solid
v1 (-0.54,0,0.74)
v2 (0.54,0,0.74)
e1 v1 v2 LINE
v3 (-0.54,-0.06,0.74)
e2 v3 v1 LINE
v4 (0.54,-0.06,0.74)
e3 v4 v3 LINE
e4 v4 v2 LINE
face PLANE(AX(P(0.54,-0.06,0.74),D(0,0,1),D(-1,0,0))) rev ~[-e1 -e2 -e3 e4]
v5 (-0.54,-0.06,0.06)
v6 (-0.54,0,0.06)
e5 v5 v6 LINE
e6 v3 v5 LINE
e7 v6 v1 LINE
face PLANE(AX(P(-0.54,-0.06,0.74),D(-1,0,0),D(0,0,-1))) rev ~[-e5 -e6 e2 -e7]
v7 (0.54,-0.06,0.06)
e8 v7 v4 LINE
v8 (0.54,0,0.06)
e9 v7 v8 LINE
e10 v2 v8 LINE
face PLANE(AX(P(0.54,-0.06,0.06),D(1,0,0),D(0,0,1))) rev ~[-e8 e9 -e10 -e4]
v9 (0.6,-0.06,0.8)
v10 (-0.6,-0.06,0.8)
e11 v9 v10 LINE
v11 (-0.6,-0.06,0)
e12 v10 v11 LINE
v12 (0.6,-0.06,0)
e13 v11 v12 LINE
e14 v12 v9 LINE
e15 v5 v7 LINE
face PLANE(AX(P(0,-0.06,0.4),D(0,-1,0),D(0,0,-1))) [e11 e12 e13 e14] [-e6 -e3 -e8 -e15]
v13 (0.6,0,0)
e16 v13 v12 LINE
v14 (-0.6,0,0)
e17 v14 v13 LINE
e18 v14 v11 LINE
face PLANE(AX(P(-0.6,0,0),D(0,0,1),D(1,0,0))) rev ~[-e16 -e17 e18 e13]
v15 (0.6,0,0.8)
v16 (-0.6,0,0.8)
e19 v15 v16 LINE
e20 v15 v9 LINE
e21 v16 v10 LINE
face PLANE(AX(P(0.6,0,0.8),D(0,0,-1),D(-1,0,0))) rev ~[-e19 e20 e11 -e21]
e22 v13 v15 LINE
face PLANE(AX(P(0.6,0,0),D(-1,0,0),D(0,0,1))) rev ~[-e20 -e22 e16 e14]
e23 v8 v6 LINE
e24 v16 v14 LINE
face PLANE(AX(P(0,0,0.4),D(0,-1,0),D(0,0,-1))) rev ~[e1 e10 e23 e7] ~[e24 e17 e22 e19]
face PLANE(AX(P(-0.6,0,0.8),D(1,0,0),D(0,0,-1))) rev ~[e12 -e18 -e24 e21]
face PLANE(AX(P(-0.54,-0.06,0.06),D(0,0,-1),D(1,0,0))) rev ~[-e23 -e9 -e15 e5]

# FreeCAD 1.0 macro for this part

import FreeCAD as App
import Part
import Sketcher
Q = App.Units.Quantity

doc = App.newDocument("Part")
params = doc.addObject("Spreadsheet::Sheet", "Params")
for row, (alias, value) in enumerate([
    ("sketch1_height", "0.8 mm"),
    ("pad1_length", "0.06 mm"),
    ("sketch2_height", "0.68 mm"),
], start=1):
    params.set(f"A{row}", alias)
    params.set(f"B{row}", "=" + value)
    params.setAlias(f"B{row}", alias)

body = doc.addObject("PartDesign::Body", "Body")

sketch1 = body.newObject("Sketcher::SketchObject", "Sketch")
sketch1.AttachmentSupport = (doc.getObject("XZ_Plane"), [""])
sketch1.MapMode = "FlatFace"
sketch1.addGeometry([
    Part.LineSegment(App.Vector(-0.6, 0.8, 0), App.Vector(-0.6, 0, 0)),
    Part.LineSegment(App.Vector(-0.6, 0, 0), App.Vector(0.6, 0, 0)),
    Part.LineSegment(App.Vector(0.6, 0, 0), App.Vector(0.6, 0.8, 0)),
    Part.LineSegment(App.Vector(0.6, 0.8, 0), App.Vector(-0.6, 0.8, 0)),
], False)
sketch1.addConstraint([
    Sketcher.Constraint("Coincident", 0, 2, 1, 1),
    Sketcher.Constraint("Coincident", 1, 2, 2, 1),
    Sketcher.Constraint("Coincident", 2, 2, 3, 1),
    Sketcher.Constraint("Coincident", 3, 2, 0, 1),
    Sketcher.Constraint("Vertical", 0),
    Sketcher.Constraint("Horizontal", 1),
    Sketcher.Constraint("Vertical", 2),
    Sketcher.Constraint("Horizontal", 3),
    Sketcher.Constraint("Symmetric", 0, 2, 1, 2, -1, 1),
    Sketcher.Constraint("DistanceX", 0, 2, -1, 1, Q("0.6 mm")),
    Sketcher.Constraint("DistanceY", 0, 2, 0, 1, Q("0.8 mm")),
])
sketch1.setExpression("Constraints[10]", "Params.sketch1_height")
pad1 = body.newObject("PartDesign::Pad", "Pad")
pad1.Profile = sketch1
pad1.setExpression("Length", "Params.pad1_length")

sketch2 = body.newObject("Sketcher::SketchObject", "Sketch001")
sketch2.AttachmentSupport = (doc.getObject("XZ_Plane"), [""])
sketch2.MapMode = "FlatFace"
sketch2.AttachmentOffset = App.Placement(App.Vector(0, 0, 0.06), App.Rotation())
sketch2.addGeometry([
    Part.LineSegment(App.Vector(-0.54, 0.74, 0), App.Vector(-0.54, 0.06, 0)),
    Part.LineSegment(App.Vector(-0.54, 0.06, 0), App.Vector(0.54, 0.06, 0)),
    Part.LineSegment(App.Vector(0.54, 0.06, 0), App.Vector(0.54, 0.74, 0)),
    Part.LineSegment(App.Vector(0.54, 0.74, 0), App.Vector(-0.54, 0.74, 0)),
], False)
sketch2.addConstraint([
    Sketcher.Constraint("Coincident", 0, 2, 1, 1),
    Sketcher.Constraint("Coincident", 1, 2, 2, 1),
    Sketcher.Constraint("Coincident", 2, 2, 3, 1),
    Sketcher.Constraint("Coincident", 3, 2, 0, 1),
    Sketcher.Constraint("Vertical", 0),
    Sketcher.Constraint("Horizontal", 1),
    Sketcher.Constraint("Vertical", 2),
    Sketcher.Constraint("Horizontal", 3),
    Sketcher.Constraint("DistanceX", 0, 2, -1, 1, Q("0.54 mm")),
    Sketcher.Constraint("DistanceX", -1, 1, 1, 2, Q("0.54 mm")),
    Sketcher.Constraint("DistanceY", 0, 2, 0, 1, Q("0.68 mm")),
    Sketcher.Constraint("DistanceY", -1, 1, 0, 2, Q("0.06 mm")),
])
sketch2.setExpression("Constraints[10]", "Params.sketch2_height")
pocket1 = body.newObject("PartDesign::Pocket", "Pocket")
pocket1.Profile = sketch2
pocket1.Type = "UpToFirst"

doc.recompute()
